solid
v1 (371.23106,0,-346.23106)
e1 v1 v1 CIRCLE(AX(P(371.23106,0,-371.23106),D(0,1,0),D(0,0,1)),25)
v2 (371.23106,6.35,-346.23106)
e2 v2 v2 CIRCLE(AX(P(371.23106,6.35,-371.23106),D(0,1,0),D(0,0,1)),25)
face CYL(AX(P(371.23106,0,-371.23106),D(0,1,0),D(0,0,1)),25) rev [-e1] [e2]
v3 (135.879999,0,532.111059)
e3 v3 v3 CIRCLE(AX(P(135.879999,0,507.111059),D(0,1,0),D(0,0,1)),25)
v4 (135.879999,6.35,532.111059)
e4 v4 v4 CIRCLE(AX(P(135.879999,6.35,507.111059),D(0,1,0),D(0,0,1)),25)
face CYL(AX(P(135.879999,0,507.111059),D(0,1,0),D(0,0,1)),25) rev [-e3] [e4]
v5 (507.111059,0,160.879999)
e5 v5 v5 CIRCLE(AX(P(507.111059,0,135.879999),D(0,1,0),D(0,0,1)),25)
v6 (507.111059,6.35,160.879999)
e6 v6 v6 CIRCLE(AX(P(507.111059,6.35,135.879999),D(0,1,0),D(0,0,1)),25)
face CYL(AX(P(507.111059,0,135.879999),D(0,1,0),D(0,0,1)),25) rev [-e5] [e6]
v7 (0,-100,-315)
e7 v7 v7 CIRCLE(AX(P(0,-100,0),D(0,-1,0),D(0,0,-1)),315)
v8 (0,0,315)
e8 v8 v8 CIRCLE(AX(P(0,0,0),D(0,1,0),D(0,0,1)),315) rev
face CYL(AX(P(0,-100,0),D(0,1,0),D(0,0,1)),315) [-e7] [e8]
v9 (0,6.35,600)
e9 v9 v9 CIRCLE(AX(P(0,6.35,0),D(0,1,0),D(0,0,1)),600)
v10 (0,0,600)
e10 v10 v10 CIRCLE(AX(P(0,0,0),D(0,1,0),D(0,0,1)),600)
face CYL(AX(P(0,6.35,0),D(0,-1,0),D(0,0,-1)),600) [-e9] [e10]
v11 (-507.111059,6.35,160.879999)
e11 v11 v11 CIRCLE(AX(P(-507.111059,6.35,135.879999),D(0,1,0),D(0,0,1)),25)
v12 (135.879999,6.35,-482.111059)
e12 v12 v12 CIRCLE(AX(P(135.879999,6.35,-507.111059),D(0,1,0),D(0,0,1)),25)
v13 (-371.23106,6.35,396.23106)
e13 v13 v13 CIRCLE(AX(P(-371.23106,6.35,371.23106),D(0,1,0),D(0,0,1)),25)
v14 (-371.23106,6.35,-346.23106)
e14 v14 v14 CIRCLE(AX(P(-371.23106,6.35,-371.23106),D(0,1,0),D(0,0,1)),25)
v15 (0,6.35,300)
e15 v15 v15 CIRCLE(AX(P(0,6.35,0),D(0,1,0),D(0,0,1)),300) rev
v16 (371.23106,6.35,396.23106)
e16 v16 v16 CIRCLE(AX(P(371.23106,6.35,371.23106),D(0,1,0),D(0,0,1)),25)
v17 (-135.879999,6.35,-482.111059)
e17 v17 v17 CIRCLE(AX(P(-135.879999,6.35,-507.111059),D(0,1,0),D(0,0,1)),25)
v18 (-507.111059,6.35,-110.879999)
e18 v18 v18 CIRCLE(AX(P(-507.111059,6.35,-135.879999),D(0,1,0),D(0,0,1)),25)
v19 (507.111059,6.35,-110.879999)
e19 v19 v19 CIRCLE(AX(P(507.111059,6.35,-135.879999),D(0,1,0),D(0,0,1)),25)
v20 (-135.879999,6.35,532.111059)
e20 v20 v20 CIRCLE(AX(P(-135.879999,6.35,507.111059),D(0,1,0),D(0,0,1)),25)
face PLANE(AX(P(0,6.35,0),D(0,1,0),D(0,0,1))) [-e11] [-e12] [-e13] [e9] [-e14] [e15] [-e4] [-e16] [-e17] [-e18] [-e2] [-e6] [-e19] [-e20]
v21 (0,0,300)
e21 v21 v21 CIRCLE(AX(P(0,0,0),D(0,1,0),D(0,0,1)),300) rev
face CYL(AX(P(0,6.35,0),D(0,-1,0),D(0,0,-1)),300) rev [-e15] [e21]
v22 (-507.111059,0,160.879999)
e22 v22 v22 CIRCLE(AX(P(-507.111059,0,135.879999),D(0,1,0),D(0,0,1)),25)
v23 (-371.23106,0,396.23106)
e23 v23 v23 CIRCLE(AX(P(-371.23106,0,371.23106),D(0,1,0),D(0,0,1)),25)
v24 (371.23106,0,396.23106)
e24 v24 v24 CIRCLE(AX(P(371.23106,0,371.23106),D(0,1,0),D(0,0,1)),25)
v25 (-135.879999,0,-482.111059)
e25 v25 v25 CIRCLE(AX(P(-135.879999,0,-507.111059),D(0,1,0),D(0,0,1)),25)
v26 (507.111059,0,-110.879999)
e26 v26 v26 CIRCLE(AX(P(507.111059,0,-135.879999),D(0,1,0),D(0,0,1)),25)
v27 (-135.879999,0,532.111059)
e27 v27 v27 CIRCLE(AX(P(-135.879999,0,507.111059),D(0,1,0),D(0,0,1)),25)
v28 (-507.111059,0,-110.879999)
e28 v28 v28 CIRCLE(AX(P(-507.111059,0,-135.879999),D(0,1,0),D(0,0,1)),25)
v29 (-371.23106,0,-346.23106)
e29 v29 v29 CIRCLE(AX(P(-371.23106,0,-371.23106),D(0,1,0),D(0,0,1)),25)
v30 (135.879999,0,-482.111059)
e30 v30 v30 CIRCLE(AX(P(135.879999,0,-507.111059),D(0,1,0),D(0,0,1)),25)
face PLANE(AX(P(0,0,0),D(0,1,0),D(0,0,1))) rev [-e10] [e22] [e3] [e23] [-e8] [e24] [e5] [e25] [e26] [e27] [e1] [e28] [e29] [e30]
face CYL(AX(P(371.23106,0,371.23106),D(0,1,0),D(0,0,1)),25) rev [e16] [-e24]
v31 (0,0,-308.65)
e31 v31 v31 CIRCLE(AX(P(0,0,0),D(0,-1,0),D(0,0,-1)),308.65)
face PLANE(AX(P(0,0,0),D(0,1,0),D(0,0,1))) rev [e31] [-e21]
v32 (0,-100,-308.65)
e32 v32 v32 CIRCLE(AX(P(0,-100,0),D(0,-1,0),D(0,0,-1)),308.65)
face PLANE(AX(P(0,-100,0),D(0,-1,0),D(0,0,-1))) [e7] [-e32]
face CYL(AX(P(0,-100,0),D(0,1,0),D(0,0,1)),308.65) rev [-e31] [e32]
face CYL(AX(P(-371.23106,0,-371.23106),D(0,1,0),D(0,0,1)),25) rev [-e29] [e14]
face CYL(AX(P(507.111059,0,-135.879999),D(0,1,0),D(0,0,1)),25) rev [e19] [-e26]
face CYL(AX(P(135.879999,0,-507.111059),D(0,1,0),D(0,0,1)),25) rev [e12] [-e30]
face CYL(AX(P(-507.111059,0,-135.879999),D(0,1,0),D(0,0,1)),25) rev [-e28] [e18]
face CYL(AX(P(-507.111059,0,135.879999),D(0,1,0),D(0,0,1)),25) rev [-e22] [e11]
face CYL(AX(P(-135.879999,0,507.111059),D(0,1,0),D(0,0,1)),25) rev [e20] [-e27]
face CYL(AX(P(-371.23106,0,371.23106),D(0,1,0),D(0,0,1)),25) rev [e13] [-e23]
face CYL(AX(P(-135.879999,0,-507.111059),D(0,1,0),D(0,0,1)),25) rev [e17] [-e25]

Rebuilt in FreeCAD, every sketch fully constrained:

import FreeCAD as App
import Part
import Sketcher

V = App.Vector
Q = App.Units.Quantity

doc = App.newDocument("Part")
body = doc.addObject("PartDesign::Body", "Body")

# Sketch on XZ plane
sketch1 = body.newObject("Sketcher::SketchObject", "Sketch")
sketch1.AttachmentSupport = (doc.getObject("XZ_Plane"), [""])
sketch1.MapMode = "FlatFace"
sketch1.addGeometry(Part.Circle(V(0, 0, 0), V(0, 0, 1), 600), False)
sketch1.addGeometry(Part.Circle(V(0, 0, 0), V(0, 0, 1), 300), False)
sketch1.addConstraint(Sketcher.Constraint("Coincident", 0, 3, -1, 1))
sketch1.addConstraint(Sketcher.Constraint("Coincident", 1, 3, -1, 1))
sketch1.addConstraint(Sketcher.Constraint("Diameter", 0, Q("1200 mm")))
sketch1.addConstraint(Sketcher.Constraint("Diameter", 1, Q("600 mm")))
pad1 = body.newObject("PartDesign::Pad", "Pad")
pad1.Profile = sketch1
pad1.Length = 6.35
pad1.Reversed = True

# Sketch on XZ plane
sketch2 = body.newObject("Sketcher::SketchObject", "Sketch001")
sketch2.AttachmentSupport = (doc.getObject("XZ_Plane"), [""])
sketch2.MapMode = "FlatFace"
sketch2.AttachmentOffset = App.Placement(V(0, 0, -6.35), App.Rotation())
sketch2.addGeometry(Part.Circle(V(136, -507, 0), V(0, 0, 1), 25), False)
sketch2.addGeometry(Part.Circle(V(-136, -507, 0), V(0, 0, 1), 25), False)
sketch2.addGeometry(Part.Circle(V(371, -371, 0), V(0, 0, 1), 25), False)
sketch2.addGeometry(Part.Circle(V(507, -136, 0), V(0, 0, 1), 25), False)
sketch2.addGeometry(Part.Circle(V(507, 136, 0), V(0, 0, 1), 25), False)
sketch2.addGeometry(Part.Circle(V(371, 371, 0), V(0, 0, 1), 25), False)
sketch2.addGeometry(Part.Circle(V(136, 507, 0), V(0, 0, 1), 25), False)
sketch2.addGeometry(Part.Circle(V(-371, -371, 0), V(0, 0, 1), 25), False)
sketch2.addGeometry(Part.Circle(V(-507, -136, 0), V(0, 0, 1), 25), False)
sketch2.addGeometry(Part.Circle(V(-507, 136, 0), V(0, 0, 1), 25), False)
sketch2.addGeometry(Part.Circle(V(-371, 371, 0), V(0, 0, 1), 25), False)
sketch2.addGeometry(Part.Circle(V(-136, 507, 0), V(0, 0, 1), 25), False)
sketch2.addConstraint(Sketcher.Constraint("Equal", 0, 1))
sketch2.addConstraint(Sketcher.Constraint("Equal", 1, 2))
sketch2.addConstraint(Sketcher.Constraint("Equal", 2, 3))
sketch2.addConstraint(Sketcher.Constraint("Equal", 3, 4))
sketch2.addConstraint(Sketcher.Constraint("Equal", 4, 5))
sketch2.addConstraint(Sketcher.Constraint("Equal", 5, 6))
sketch2.addConstraint(Sketcher.Constraint("Equal", 6, 7))
sketch2.addConstraint(Sketcher.Constraint("Equal", 7, 8))
sketch2.addConstraint(Sketcher.Constraint("Equal", 8, 9))
sketch2.addConstraint(Sketcher.Constraint("Equal", 9, 10))
sketch2.addConstraint(Sketcher.Constraint("Equal", 10, 11))
sketch2.addConstraint(Sketcher.Constraint("Symmetric", 1, 3, 6, 3, -1, 1))
sketch2.addConstraint(Sketcher.Constraint("Symmetric", 5, 3, 7, 3, -1, 1))
sketch2.addConstraint(Sketcher.Constraint("Symmetric", 4, 3, 8, 3, -1, 1))
sketch2.addConstraint(Sketcher.Constraint("Symmetric", 3, 3, 9, 3, -1, 1))
sketch2.addConstraint(Sketcher.Constraint("Symmetric", 2, 3, 10, 3, -1, 1))
sketch2.addConstraint(Sketcher.Constraint("Symmetric", 0, 3, 11, 3, -1, 1))
sketch2.addConstraint(Sketcher.Constraint("Symmetric", 0, 3, 1, 3, -2))
sketch2.addConstraint(Sketcher.Constraint("Symmetric", 2, 3, 7, 3, -2))
sketch2.addConstraint(Sketcher.Constraint("Symmetric", 3, 3, 8, 3, -2))
sketch2.addConstraint(Sketcher.Constraint("Diameter", 0, Q("50 mm")))
sketch2.addConstraint(Sketcher.Constraint("DistanceX", -1, 1, 0, 3, Q("135.879999 mm")))
sketch2.addConstraint(Sketcher.Constraint("DistanceY", 3, 3, -1, 1, Q("135.879999 mm")))
sketch2.addConstraint(Sketcher.Constraint("DistanceY", 0, 3, 2, 3, Q("135.879999 mm")))
sketch2.addConstraint(Sketcher.Constraint("DistanceX", 2, 3, 3, 3, Q("135.879999 mm")))
sketch2.addConstraint(Sketcher.Constraint("DistanceY", 0, 3, -1, 1, Q("507.111059 mm")))
sketch2.addConstraint(Sketcher.Constraint("DistanceX", -1, 1, 2, 3, Q("371.23106 mm")))
pocket1 = body.newObject("PartDesign::Pocket", "Pocket")
pocket1.Profile = sketch2
pocket1.Type = "ThroughAll"
pocket1.Midplane = True

# Sketch on XZ plane
sketch3 = body.newObject("Sketcher::SketchObject", "Sketch002")
sketch3.AttachmentSupport = (doc.getObject("XZ_Plane"), [""])
sketch3.MapMode = "FlatFace"
sketch3.addGeometry(Part.Circle(V(0, 0, 0), V(0, 0, 1), 315), False)
sketch3.addGeometry(Part.Circle(V(0, 0, 0), V(0, 0, 1), 309), False)
sketch3.addConstraint(Sketcher.Constraint("Coincident", 0, 3, -1, 1))
sketch3.addConstraint(Sketcher.Constraint("Coincident", 1, 3, -1, 1))
sketch3.addConstraint(Sketcher.Constraint("Diameter", 0, Q("630 mm")))
sketch3.addConstraint(Sketcher.Constraint("Diameter", 1, Q("617.3 mm")))
pad2 = body.newObject("PartDesign::Pad", "Pad001")
pad2.Profile = sketch3
pad2.Length = 100

doc.recompute()
